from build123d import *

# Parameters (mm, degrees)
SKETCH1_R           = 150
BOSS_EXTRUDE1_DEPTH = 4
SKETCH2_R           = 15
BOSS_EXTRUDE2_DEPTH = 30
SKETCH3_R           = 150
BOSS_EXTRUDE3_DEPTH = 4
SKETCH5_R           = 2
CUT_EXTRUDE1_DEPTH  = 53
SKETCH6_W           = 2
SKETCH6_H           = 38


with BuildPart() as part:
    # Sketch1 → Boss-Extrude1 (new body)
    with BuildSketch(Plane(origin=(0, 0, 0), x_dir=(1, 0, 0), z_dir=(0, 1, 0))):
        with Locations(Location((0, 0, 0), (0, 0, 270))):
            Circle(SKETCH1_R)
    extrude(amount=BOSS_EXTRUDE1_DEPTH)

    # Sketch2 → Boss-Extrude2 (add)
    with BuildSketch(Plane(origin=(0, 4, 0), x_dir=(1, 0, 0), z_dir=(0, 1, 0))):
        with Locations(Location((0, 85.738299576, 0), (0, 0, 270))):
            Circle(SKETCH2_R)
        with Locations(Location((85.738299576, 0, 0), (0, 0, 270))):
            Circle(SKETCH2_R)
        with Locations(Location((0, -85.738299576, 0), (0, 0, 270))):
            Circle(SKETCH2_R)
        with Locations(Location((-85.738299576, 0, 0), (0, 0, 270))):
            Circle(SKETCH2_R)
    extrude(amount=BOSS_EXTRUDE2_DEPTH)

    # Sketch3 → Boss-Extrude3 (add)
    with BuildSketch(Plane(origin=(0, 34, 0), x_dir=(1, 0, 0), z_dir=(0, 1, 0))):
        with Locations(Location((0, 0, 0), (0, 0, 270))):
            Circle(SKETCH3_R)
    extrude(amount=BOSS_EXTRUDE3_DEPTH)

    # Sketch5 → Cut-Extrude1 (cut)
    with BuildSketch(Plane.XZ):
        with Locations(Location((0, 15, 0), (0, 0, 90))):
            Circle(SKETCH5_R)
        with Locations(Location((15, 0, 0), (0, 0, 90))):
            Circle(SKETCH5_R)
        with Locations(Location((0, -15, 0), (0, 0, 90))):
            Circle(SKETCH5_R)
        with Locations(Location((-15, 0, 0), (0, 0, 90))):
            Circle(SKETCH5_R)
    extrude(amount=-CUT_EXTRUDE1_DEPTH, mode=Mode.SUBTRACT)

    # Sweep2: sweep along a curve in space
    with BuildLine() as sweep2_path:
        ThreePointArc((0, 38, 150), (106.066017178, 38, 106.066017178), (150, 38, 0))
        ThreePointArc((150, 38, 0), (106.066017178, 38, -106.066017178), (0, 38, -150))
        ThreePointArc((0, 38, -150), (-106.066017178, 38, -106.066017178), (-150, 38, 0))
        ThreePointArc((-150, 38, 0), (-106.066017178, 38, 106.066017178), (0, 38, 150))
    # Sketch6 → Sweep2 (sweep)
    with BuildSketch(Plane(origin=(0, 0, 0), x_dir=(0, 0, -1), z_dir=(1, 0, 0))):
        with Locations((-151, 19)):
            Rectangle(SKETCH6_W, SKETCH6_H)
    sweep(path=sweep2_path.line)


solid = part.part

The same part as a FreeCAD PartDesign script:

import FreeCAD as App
import Part
import Sketcher
Q = App.Units.Quantity

doc = App.newDocument("Part")
body = doc.addObject("PartDesign::Body", "Body")

sketch1 = doc.addObject("Sketcher::SketchObject", "Sketch")
body.addObject(sketch1)
sketch1.AttachmentSupport = (doc.XZ_Plane, [""])
sketch1.MapMode = "FlatFace"
sketch1.addGeometry(Part.Circle(App.Vector(0, 0, 0), App.Vector(0, 0, 1), 150), False)
sketch1.addConstraint([
    Sketcher.Constraint("Coincident", 0, 3, -1, 1),
    Sketcher.Constraint("Diameter", 0, Q("300 mm")),
])
pad1 = doc.addObject("PartDesign::Pad", "Pad")
body.addObject(pad1)
pad1.Profile = sketch1
pad1.Length = 4
pad1.Reversed = True

sketch2 = doc.addObject("Sketcher::SketchObject", "Sketch001")
body.addObject(sketch2)
sketch2.AttachmentSupport = (doc.XZ_Plane, [""])
sketch2.MapMode = "FlatFace"
sketch2.AttachmentOffset = App.Placement(App.Vector(0, 0, -4), App.Rotation())
sketch2.addGeometry([
    Part.Circle(App.Vector(0, -86, 0), App.Vector(0, 0, 1), 15),
    Part.Circle(App.Vector(86, 0, 0), App.Vector(0, 0, 1), 15),
    Part.Circle(App.Vector(0, 86, 0), App.Vector(0, 0, 1), 15),
    Part.Circle(App.Vector(-86, 0, 0), App.Vector(0, 0, 1), 15),
], False)
sketch2.addConstraint([
    Sketcher.Constraint("Equal", 0, 1),
    Sketcher.Constraint("Equal", 1, 2),
    Sketcher.Constraint("Equal", 2, 3),
    Sketcher.Constraint("Symmetric", 0, 3, 2, 3, -1, 1),
    Sketcher.Constraint("Symmetric", 1, 3, 3, 3, -1, 1),
    Sketcher.Constraint("PointOnObject", 0, 3, -2),
    Sketcher.Constraint("PointOnObject", 1, 3, -1),
    Sketcher.Constraint("Diameter", 0, Q("30 mm")),
    Sketcher.Constraint("DistanceY", 0, 3, -1, 1, Q("85.7383 mm")),
    Sketcher.Constraint("DistanceX", -1, 1, 1, 3, Q("85.7383 mm")),
])
pad2 = doc.addObject("PartDesign::Pad", "Pad001")
body.addObject(pad2)
pad2.Profile = sketch2
pad2.Length = 30
pad2.Reversed = True

sketch3 = doc.addObject("Sketcher::SketchObject", "Sketch002")
body.addObject(sketch3)
sketch3.AttachmentSupport = (doc.XZ_Plane, [""])
sketch3.MapMode = "FlatFace"
sketch3.AttachmentOffset = App.Placement(App.Vector(0, 0, -34), App.Rotation())
sketch3.addGeometry(Part.Circle(App.Vector(0, 0, 0), App.Vector(0, 0, 1), 150), False)
sketch3.addConstraint([
    Sketcher.Constraint("Coincident", 0, 3, -1, 1),
    Sketcher.Constraint("Diameter", 0, Q("300 mm")),
])
pad3 = doc.addObject("PartDesign::Pad", "Pad002")
body.addObject(pad3)
pad3.Profile = sketch3
pad3.Length = 4
pad3.Reversed = True

sketch4 = doc.addObject("Sketcher::SketchObject", "Sketch003")
body.addObject(sketch4)
sketch4.AttachmentSupport = (doc.XZ_Plane, [""])
sketch4.MapMode = "FlatFace"
sketch4.addGeometry([
    Part.Circle(App.Vector(0, 15, 0), App.Vector(0, 0, 1), 2),
    Part.Circle(App.Vector(15, 0, 0), App.Vector(0, 0, 1), 2),
    Part.Circle(App.Vector(0, -15, 0), App.Vector(0, 0, 1), 2),
    Part.Circle(App.Vector(-15, 0, 0), App.Vector(0, 0, 1), 2),
], False)
sketch4.addConstraint([
    Sketcher.Constraint("Equal", 0, 1),
    Sketcher.Constraint("Equal", 1, 2),
    Sketcher.Constraint("Equal", 2, 3),
    Sketcher.Constraint("Symmetric", 0, 3, 2, 3, -1, 1),
    Sketcher.Constraint("Symmetric", 1, 3, 3, 3, -1, 1),
    Sketcher.Constraint("PointOnObject", 0, 3, -2),
    Sketcher.Constraint("PointOnObject", 1, 3, -1),
    Sketcher.Constraint("Diameter", 0, Q("4 mm")),
    Sketcher.Constraint("DistanceY", -1, 1, 0, 3, Q("15 mm")),
    Sketcher.Constraint("DistanceX", -1, 1, 1, 3, Q("15 mm")),
])
pocket1 = doc.addObject("PartDesign::Pocket", "Pocket")
body.addObject(pocket1)
pocket1.Profile = sketch4
pocket1.Length = 53

sketch5 = doc.addObject("Sketcher::SketchObject", "Sketch004")
body.addObject(sketch5)
sketch5.AttachmentSupport = (doc.YZ_Plane, [""])
sketch5.MapMode = "FlatFace"
sketch5.addGeometry([
    Part.LineSegment(App.Vector(38, 152, 0), App.Vector(0, 152, 0)),
    Part.LineSegment(App.Vector(0, 152, 0), App.Vector(0, 150, 0)),
    Part.LineSegment(App.Vector(0, 150, 0), App.Vector(38, 150, 0)),
    Part.LineSegment(App.Vector(38, 150, 0), App.Vector(38, 152, 0)),
], False)
sketch5.addConstraint([
    Sketcher.Constraint("Coincident", 0, 2, 1, 1),
    Sketcher.Constraint("Coincident", 1, 2, 2, 1),
    Sketcher.Constraint("Coincident", 2, 2, 3, 1),
    Sketcher.Constraint("Coincident", 3, 2, 0, 1),
    Sketcher.Constraint("Horizontal", 0),
    Sketcher.Constraint("Vertical", 1),
    Sketcher.Constraint("Horizontal", 2),
    Sketcher.Constraint("Vertical", 3),
    Sketcher.Constraint("PointOnObject", 0, 2, -2),
    Sketcher.Constraint("DistanceX", 0, 2, 0, 1, Q("38 mm")),
    Sketcher.Constraint("DistanceY", 1, 2, 1, 1, Q("2 mm")),
    Sketcher.Constraint("DistanceY", -1, 1, 0, 2, Q("152 mm")),
])

sketch6 = doc.addObject("Sketcher::SketchObject", "Sketch005")
body.addObject(sketch6)
sketch6.AttachmentSupport = (doc.XZ_Plane, [""])
sketch6.MapMode = "FlatFace"
sketch6.AttachmentOffset = App.Placement(App.Vector(0, 0, -38), App.Rotation())
sketch6.addGeometry(Part.Circle(App.Vector(0, 0, 0), App.Vector(0, 0, 1), 150), False)
sketch6.addConstraint([
    Sketcher.Constraint("Coincident", 0, 3, -1, 1),
    Sketcher.Constraint("Diameter", 0, Q("300 mm")),
])
doc.recompute()

additivepipe = doc.addObject("PartDesign::AdditivePipe", "AdditivePipe")
body.addObject(additivepipe)
additivepipe.Profile = sketch5
additivepipe.Spine = (sketch6, ["Edge1"])

doc.recompute()
